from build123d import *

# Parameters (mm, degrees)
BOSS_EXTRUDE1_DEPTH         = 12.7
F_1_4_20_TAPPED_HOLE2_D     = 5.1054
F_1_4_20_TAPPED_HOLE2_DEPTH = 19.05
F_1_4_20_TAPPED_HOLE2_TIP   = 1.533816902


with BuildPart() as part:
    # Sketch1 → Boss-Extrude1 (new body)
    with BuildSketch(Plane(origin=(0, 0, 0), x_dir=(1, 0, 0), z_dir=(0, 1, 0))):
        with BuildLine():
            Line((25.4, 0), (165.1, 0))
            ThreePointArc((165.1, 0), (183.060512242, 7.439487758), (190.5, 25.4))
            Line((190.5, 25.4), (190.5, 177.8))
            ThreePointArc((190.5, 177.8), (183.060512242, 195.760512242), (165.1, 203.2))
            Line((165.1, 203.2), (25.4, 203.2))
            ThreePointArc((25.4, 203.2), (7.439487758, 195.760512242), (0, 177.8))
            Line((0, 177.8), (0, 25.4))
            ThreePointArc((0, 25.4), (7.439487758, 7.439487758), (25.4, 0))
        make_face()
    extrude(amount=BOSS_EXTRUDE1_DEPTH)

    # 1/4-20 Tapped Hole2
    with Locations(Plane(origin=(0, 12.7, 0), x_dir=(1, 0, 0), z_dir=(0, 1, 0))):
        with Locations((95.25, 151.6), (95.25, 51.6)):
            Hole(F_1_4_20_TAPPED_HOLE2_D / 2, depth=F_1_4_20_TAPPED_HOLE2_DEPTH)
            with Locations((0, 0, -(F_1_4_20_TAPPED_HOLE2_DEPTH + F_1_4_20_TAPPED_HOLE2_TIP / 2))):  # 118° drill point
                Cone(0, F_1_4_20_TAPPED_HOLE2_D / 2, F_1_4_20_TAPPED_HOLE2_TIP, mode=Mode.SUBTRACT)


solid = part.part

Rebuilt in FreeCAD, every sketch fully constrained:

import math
import FreeCAD as App
import Part
import Sketcher
from FreeCAD import Vector
Q = App.Units.Quantity

doc = App.newDocument("Part")
body = doc.addObject("PartDesign::Body", "Body")

# Sketch on XZ plane
sketch1 = doc.addObject("Sketcher::SketchObject", "Sketch")
body.addObject(sketch1)
sketch1.AttachmentSupport = (doc.XZ_Plane, [""])
sketch1.MapMode = "FlatFace"
sketch1.addGeometry(Part.LineSegment(Vector(25, 0, 0), Vector(165, 0, 0)), False)
sketch1.addGeometry(Part.ArcOfCircle(Part.Circle(Vector(165, -25, 0), Vector(0, 0, 1), 25), math.radians(0), math.radians(90)), False)
sketch1.addGeometry(Part.LineSegment(Vector(190, -25, 0), Vector(190, -178, 0)), False)
sketch1.addGeometry(Part.ArcOfCircle(Part.Circle(Vector(165, -178, 0), Vector(0, 0, 1), 25), math.radians(-90), math.radians(0)), False)
sketch1.addGeometry(Part.LineSegment(Vector(165, -203, 0), Vector(25, -203, 0)), False)
sketch1.addGeometry(Part.ArcOfCircle(Part.Circle(Vector(25, -178, 0), Vector(0, 0, 1), 25), math.radians(180), math.radians(270)), False)
sketch1.addGeometry(Part.LineSegment(Vector(0, -178, 0), Vector(0, -25, 0)), False)
sketch1.addGeometry(Part.ArcOfCircle(Part.Circle(Vector(25, -25, 0), Vector(0, 0, 1), 25), math.radians(90), math.radians(180)), False)
sketch1.addConstraint(Sketcher.Constraint("Tangent", 0, 2, 1, 2))
sketch1.addConstraint(Sketcher.Constraint("Tangent", 1, 1, 2, 1))
sketch1.addConstraint(Sketcher.Constraint("Tangent", 2, 2, 3, 2))
sketch1.addConstraint(Sketcher.Constraint("Tangent", 3, 1, 4, 1))
sketch1.addConstraint(Sketcher.Constraint("Tangent", 4, 2, 5, 2))
sketch1.addConstraint(Sketcher.Constraint("Tangent", 5, 1, 6, 1))
sketch1.addConstraint(Sketcher.Constraint("Tangent", 6, 2, 7, 2))
sketch1.addConstraint(Sketcher.Constraint("Tangent", 7, 1, 0, 1))
sketch1.addConstraint(Sketcher.Constraint("Horizontal", 0))
sketch1.addConstraint(Sketcher.Constraint("Vertical", 2))
sketch1.addConstraint(Sketcher.Constraint("Horizontal", 4))
sketch1.addConstraint(Sketcher.Constraint("Vertical", 6))
sketch1.addConstraint(Sketcher.Constraint("Equal", 1, 3))
sketch1.addConstraint(Sketcher.Constraint("Equal", 3, 5))
sketch1.addConstraint(Sketcher.Constraint("Equal", 5, 7))
sketch1.addConstraint(Sketcher.Constraint("PointOnObject", 0, 2, -1))
sketch1.addConstraint(Sketcher.Constraint("PointOnObject", 5, 1, -2))
sketch1.addConstraint(Sketcher.Constraint("Radius", 1, Q("1 in")))
sketch1.addConstraint(Sketcher.Constraint("DistanceY", 2, 2, 2, 1, Q("6 in")))
sketch1.addConstraint(Sketcher.Constraint("DistanceX", 0, 1, 0, 2, Q("5.5 in")))
pad1 = doc.addObject("PartDesign::Pad", "Pad")
body.addObject(pad1)
pad1.Profile = sketch1
pad1.Length = Q("0.5 in")
pad1.Reversed = True

# Sketch on XZ plane
sketch2 = doc.addObject("Sketcher::SketchObject", "Sketch001")
body.addObject(sketch2)
sketch2.AttachmentSupport = (doc.XZ_Plane, [""])
sketch2.MapMode = "FlatFace"
sketch2.AttachmentOffset = App.Placement(Vector(0, 0, -0.5 * 25.4), App.Rotation())
sketch2.addGeometry(Part.Circle(Vector(95.2, -151.6, 0), Vector(0, 0, 1), 2.6), False)
sketch2.addGeometry(Part.Circle(Vector(95.2, -51.6, 0), Vector(0, 0, 1), 2.6), False)
sketch2.addConstraint(Sketcher.Constraint("Equal", 0, 1))
sketch2.addConstraint(Sketcher.Constraint("Vertical", 0, 3, 1, 3))
sketch2.addConstraint(Sketcher.Constraint("Diameter", 0, Q("0.201 in")))
sketch2.addConstraint(Sketcher.Constraint("DistanceX", -1, 1, 0, 3, Q("3.75 in")))
sketch2.addConstraint(Sketcher.Constraint("DistanceY", 0, 3, -1, 1, Q("151.6 mm")))
sketch2.addConstraint(Sketcher.Constraint("DistanceY", 1, 3, -1, 1, Q("51.6 mm")))
doc.recompute()
hole = doc.addObject("PartDesign::Hole", "Hole")
body.addObject(hole)
hole.Profile = sketch2
hole.ThreadType = "None"
hole.Diameter = Q("0.201 in")
hole.DepthType = "Dimension"
hole.Depth = Q("0.75 in")
hole.DrillPoint = "Angled"
hole.DrillPointAngle = 118
hole.Reversed = True

doc.recompute()
